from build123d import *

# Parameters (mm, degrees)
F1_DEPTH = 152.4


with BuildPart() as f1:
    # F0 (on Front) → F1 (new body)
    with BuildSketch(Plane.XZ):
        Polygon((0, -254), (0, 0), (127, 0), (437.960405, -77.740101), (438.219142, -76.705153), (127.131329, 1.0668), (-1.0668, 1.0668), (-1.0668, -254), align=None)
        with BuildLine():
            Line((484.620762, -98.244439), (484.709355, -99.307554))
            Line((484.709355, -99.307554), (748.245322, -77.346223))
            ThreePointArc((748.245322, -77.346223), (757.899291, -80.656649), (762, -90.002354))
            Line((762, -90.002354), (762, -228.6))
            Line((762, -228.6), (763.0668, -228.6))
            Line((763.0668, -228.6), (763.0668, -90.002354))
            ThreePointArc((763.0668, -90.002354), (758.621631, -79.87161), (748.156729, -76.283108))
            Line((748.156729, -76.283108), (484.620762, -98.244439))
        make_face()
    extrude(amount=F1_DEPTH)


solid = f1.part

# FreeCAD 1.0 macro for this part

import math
import FreeCAD as App
import Part
import Sketcher

V = App.Vector
Q = App.Units.Quantity

doc = App.newDocument("Part")
body = doc.addObject("PartDesign::Body", "Body")
body.AllowCompound = True

sketch1 = body.newObject("Sketcher::SketchObject", "Sketch")
sketch1.AttachmentSupport = (doc.getObject("XZ_Plane"), [""])
sketch1.MapMode = "FlatFace"
sketch1.addGeometry([
    Part.LineSegment(V(0, -254, 0), V(0, 0, 0)),
    Part.LineSegment(V(0, 0, 0), V(127, 0, 0)),
    Part.LineSegment(V(127, 0, 0), V(438, -77.7, 0)),
    Part.LineSegment(V(438, -77.7, 0), V(438.2, -76.7, 0)),
    Part.LineSegment(V(438.2, -76.7, 0), V(127.1, 1.1, 0)),
    Part.LineSegment(V(127.1, 1.1, 0), V(-1.1, 1.1, 0)),
    Part.LineSegment(V(-1.1, 1.1, 0), V(-1.1, -254, 0)),
    Part.LineSegment(V(-1.1, -254, 0), V(0, -254, 0)),
    Part.LineSegment(V(484.6, -98.2, 0), V(484.7, -99.3, 0)),
    Part.LineSegment(V(484.7, -99.3, 0), V(748.2, -77.3, 0)),
    Part.ArcOfCircle(Part.Circle(V(749.3, -90, 0), V(0, 0, 1), 12.7), math.radians(0), math.radians(95)),
    Part.LineSegment(V(762, -90, 0), V(762, -228.6, 0)),
    Part.LineSegment(V(762, -228.6, 0), V(763.1, -228.6, 0)),
    Part.LineSegment(V(763.1, -228.6, 0), V(763.1, -90, 0)),
    Part.ArcOfCircle(Part.Circle(V(749.3, -90, 0), V(0, 0, 1), 13.8), math.radians(0), math.radians(95)),
    Part.LineSegment(V(748.2, -76.3, 0), V(484.6, -98.2, 0)),
], False)
sketch1.addConstraint([
    Sketcher.Constraint("Coincident", 0, 2, 1, 1),
    Sketcher.Constraint("Coincident", 1, 2, 2, 1),
    Sketcher.Constraint("Coincident", 2, 2, 3, 1),
    Sketcher.Constraint("Coincident", 3, 2, 4, 1),
    Sketcher.Constraint("Coincident", 4, 2, 5, 1),
    Sketcher.Constraint("Coincident", 5, 2, 6, 1),
    Sketcher.Constraint("Coincident", 6, 2, 7, 1),
    Sketcher.Constraint("Coincident", 7, 2, 0, 1),
    Sketcher.Constraint("Coincident", 8, 2, 9, 1),
    Sketcher.Constraint("Tangent", 9, 2, 10, 2),
    Sketcher.Constraint("Tangent", 10, 1, 11, 1),
    Sketcher.Constraint("Coincident", 11, 2, 12, 1),
    Sketcher.Constraint("Coincident", 12, 2, 13, 1),
    Sketcher.Constraint("Tangent", 13, 2, 14, 1),
    Sketcher.Constraint("Tangent", 14, 2, 15, 1),
    Sketcher.Constraint("Coincident", 15, 2, 8, 1),
    Sketcher.Constraint("Vertical", 0),
    Sketcher.Constraint("Horizontal", 1),
    Sketcher.Constraint("Horizontal", 5),
    Sketcher.Constraint("Vertical", 6),
    Sketcher.Constraint("Horizontal", 7),
    Sketcher.Constraint("Vertical", 11),
    Sketcher.Constraint("Horizontal", 12),
    Sketcher.Constraint("Vertical", 13),
    Sketcher.Constraint("Coincident", 0, 2, -1, 1),
    Sketcher.Constraint("Coincident", 14, 3, 10, 3),
    Sketcher.Constraint("Perpendicular", 2, 3),
    Sketcher.Constraint("Perpendicular", 3, 4),
    Sketcher.Constraint("Perpendicular", 8, 9),
    Sketcher.Constraint("Parallel", 9, 15),
    Sketcher.Constraint("Equal", 7, 12),
    Sketcher.Constraint("Equal", 3, 8),
    Sketcher.Constraint("Radius", 10, Q("0.5 in")),
    Sketcher.Constraint("DistanceX", 1, 1, 1, 2, Q("5 in")),
    Sketcher.Constraint("DistanceY", 0, 1, 0, 2, Q("10 in")),
    Sketcher.Constraint("DistanceX", -1, 1, 10, 1, Q("30 in")),
    Sketcher.Constraint("DistanceY", 11, 2, -1, 1, Q("9 in")),
    Sketcher.Constraint("Radius", 14, Q("0.542 in")),
    Sketcher.Constraint("DistanceY", 6, 2, 6, 1, Q("10.042 in")),
    Sketcher.Constraint("DistanceY", 2, 2, -1, 1, Q("77.740101 mm")),
    Sketcher.Constraint("DistanceY", 14, 3, 3, 2, Q("13.297201 mm")),
    Sketcher.Constraint("DistanceY", 8, 2, 3, 2, Q("22.602401 mm")),
    Sketcher.Constraint("Distance", 2, Q("320.530649 mm")),
    Sketcher.Constraint("Distance", 9, Q("264.449439 mm")),
])
pad1 = body.newObject("PartDesign::Pad", "Pad")
pad1.Profile = sketch1
pad1.Length = Q("6 in")

doc.recompute()
